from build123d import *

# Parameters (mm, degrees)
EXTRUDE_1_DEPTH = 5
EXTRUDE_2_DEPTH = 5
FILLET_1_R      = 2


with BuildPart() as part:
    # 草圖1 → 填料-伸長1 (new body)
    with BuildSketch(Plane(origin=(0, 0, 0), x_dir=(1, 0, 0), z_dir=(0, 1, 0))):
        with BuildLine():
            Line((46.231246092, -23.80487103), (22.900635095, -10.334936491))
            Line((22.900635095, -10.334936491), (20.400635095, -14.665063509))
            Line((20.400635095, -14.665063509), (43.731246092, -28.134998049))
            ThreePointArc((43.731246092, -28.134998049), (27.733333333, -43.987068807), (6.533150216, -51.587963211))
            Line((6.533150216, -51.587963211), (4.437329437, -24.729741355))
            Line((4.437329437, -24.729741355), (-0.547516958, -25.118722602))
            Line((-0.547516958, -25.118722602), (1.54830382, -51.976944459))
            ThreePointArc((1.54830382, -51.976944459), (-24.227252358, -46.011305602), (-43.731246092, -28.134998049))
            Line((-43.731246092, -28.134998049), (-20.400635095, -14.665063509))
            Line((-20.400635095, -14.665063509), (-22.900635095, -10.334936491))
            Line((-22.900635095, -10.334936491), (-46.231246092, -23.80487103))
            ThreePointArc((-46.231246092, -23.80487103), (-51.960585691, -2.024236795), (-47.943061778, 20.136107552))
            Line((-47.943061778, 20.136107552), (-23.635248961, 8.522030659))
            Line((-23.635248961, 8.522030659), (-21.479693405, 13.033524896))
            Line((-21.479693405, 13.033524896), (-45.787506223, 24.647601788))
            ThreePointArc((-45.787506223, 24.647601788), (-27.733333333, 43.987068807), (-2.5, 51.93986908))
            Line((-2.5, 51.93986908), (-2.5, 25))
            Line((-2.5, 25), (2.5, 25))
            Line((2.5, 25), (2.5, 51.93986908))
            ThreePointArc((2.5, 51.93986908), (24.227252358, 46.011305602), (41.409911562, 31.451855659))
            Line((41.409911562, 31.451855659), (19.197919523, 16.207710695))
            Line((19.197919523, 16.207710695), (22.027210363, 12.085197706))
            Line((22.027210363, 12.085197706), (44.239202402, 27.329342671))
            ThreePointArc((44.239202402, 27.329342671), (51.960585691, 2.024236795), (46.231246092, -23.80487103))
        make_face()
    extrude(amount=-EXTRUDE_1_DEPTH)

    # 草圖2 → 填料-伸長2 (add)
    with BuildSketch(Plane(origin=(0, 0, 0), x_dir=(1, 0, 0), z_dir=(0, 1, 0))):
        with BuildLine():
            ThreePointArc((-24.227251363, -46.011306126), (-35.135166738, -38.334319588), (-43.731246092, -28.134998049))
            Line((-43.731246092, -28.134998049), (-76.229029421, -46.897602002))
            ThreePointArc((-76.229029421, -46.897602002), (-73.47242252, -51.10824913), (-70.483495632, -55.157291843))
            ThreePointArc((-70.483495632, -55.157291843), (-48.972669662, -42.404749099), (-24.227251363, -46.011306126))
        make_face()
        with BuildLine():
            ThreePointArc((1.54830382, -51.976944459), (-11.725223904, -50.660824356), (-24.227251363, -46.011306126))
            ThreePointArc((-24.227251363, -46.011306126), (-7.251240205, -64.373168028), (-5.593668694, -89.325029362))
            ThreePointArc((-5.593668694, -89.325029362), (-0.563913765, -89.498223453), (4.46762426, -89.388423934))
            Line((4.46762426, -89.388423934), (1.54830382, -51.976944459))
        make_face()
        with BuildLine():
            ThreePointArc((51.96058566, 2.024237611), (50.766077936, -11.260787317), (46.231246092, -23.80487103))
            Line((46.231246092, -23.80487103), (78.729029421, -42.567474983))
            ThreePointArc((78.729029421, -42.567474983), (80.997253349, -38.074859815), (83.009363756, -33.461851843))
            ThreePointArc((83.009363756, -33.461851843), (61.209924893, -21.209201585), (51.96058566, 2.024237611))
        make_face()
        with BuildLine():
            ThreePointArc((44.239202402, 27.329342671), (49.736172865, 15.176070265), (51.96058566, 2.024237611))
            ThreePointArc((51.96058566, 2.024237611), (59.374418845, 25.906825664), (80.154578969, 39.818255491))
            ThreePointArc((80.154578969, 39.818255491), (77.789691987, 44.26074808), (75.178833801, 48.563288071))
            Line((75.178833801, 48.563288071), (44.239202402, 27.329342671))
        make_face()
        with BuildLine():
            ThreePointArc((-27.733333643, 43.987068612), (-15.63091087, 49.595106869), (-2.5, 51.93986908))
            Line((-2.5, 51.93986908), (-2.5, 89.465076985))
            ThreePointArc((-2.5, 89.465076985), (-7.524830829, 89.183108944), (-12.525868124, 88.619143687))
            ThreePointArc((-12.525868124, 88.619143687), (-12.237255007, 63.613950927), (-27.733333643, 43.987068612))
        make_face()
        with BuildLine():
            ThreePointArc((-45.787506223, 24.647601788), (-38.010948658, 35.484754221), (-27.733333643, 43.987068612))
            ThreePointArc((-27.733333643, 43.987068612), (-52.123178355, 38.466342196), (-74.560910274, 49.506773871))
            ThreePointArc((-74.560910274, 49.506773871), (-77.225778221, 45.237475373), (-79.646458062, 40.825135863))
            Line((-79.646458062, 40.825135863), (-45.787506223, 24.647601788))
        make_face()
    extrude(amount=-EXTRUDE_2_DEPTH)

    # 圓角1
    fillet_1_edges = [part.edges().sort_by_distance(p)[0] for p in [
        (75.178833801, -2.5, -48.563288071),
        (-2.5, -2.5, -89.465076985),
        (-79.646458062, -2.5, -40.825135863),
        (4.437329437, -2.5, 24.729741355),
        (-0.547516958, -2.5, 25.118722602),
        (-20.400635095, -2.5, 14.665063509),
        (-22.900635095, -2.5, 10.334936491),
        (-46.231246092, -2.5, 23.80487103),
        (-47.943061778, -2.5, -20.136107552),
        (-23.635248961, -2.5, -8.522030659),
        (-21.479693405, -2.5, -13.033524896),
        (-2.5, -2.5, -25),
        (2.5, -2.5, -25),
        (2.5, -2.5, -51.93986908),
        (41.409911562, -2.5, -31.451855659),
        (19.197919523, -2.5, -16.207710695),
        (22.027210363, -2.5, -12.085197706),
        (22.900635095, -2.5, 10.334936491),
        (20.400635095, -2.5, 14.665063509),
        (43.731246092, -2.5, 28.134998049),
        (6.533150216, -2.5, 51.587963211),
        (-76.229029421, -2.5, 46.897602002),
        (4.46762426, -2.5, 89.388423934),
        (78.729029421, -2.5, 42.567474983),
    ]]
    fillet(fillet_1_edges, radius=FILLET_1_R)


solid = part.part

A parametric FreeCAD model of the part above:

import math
import FreeCAD as App
import Part
import Sketcher
Q = App.Units.Quantity


def edges_at(feature, points):
    """Names of the edges that pass closest to the given points."""
    edges = feature.Shape.Edges
    near = lambda p: min(range(len(edges)), key=lambda i: edges[i].distToShape(Part.Vertex(*p))[0])
    return sorted({f"Edge{near(p) + 1}" for p in points})

doc = App.newDocument("Part")
body = doc.addObject("PartDesign::Body", "Body")

sketch1 = doc.addObject("Sketcher::SketchObject", "Sketch")
body.addObject(sketch1)
sketch1.AttachmentSupport = (doc.XZ_Plane, [""])
sketch1.MapMode = "FlatFace"
sketch1.addGeometry([
    Part.LineSegment(App.Vector(22.9, 10.3, 0), App.Vector(46.2, 23.8, 0)),
    Part.ArcOfCircle(Part.Circle(App.Vector(0, 0, 0), App.Vector(0, 0, 1), 52), math.radians(-32), math.radians(27)),
    Part.LineSegment(App.Vector(44.2, -27.3, 0), App.Vector(22, -12.1, 0)),
    Part.LineSegment(App.Vector(22, -12.1, 0), App.Vector(19.2, -16.2, 0)),
    Part.LineSegment(App.Vector(19.2, -16.2, 0), App.Vector(41.4, -31.5, 0)),
    Part.ArcOfCircle(Part.Circle(App.Vector(0, 0, 0), App.Vector(0, 0, 1), 52), math.radians(-87), math.radians(-37)),
    Part.LineSegment(App.Vector(2.5, -51.9, 0), App.Vector(2.5, -25, 0)),
    Part.LineSegment(App.Vector(2.5, -25, 0), App.Vector(-2.5, -25, 0)),
    Part.LineSegment(App.Vector(-2.5, -25, 0), App.Vector(-2.5, -51.9, 0)),
    Part.ArcOfCircle(Part.Circle(App.Vector(0, 0, 0), App.Vector(0, 0, 1), 52), math.radians(-152), math.radians(-93)),
    Part.LineSegment(App.Vector(-45.8, -24.6, 0), App.Vector(-21.5, -13, 0)),
    Part.LineSegment(App.Vector(-21.5, -13, 0), App.Vector(-23.6, -8.5, 0)),
    Part.LineSegment(App.Vector(-23.6, -8.5, 0), App.Vector(-47.9, -20.1, 0)),
    Part.ArcOfCircle(Part.Circle(App.Vector(0, 0, 0), App.Vector(0, 0, 1), 52), math.radians(153), math.radians(203)),
    Part.LineSegment(App.Vector(-46.2, 23.8, 0), App.Vector(-22.9, 10.3, 0)),
    Part.LineSegment(App.Vector(-22.9, 10.3, 0), App.Vector(-20.4, 14.7, 0)),
    Part.LineSegment(App.Vector(-20.4, 14.7, 0), App.Vector(-43.7, 28.1, 0)),
    Part.ArcOfCircle(Part.Circle(App.Vector(0, 0, 0), App.Vector(0, 0, 1), 52), math.radians(88), math.radians(147)),
    Part.LineSegment(App.Vector(1.5, 52, 0), App.Vector(-0.5, 25.1, 0)),
    Part.LineSegment(App.Vector(-0.5, 25.1, 0), App.Vector(4.4, 24.7, 0)),
    Part.LineSegment(App.Vector(4.4, 24.7, 0), App.Vector(6.5, 51.6, 0)),
    Part.ArcOfCircle(Part.Circle(App.Vector(0, 0, 0), App.Vector(0, 0, 1), 52), math.radians(33), math.radians(83)),
    Part.LineSegment(App.Vector(43.7, 28.1, 0), App.Vector(20.4, 14.7, 0)),
    Part.LineSegment(App.Vector(20.4, 14.7, 0), App.Vector(22.9, 10.3, 0)),
], False)
sketch1.addConstraint([
    Sketcher.Constraint("Coincident", 0, 2, 1, 2),
    Sketcher.Constraint("Coincident", 1, 1, 2, 1),
    Sketcher.Constraint("Coincident", 2, 2, 3, 1),
    Sketcher.Constraint("Coincident", 3, 2, 4, 1),
    Sketcher.Constraint("Coincident", 4, 2, 5, 2),
    Sketcher.Constraint("Coincident", 5, 1, 6, 1),
    Sketcher.Constraint("Coincident", 6, 2, 7, 1),
    Sketcher.Constraint("Coincident", 7, 2, 8, 1),
    Sketcher.Constraint("Coincident", 8, 2, 9, 2),
    Sketcher.Constraint("Coincident", 9, 1, 10, 1),
    Sketcher.Constraint("Coincident", 10, 2, 11, 1),
    Sketcher.Constraint("Coincident", 11, 2, 12, 1),
    Sketcher.Constraint("Coincident", 12, 2, 13, 2),
    Sketcher.Constraint("Coincident", 13, 1, 14, 1),
    Sketcher.Constraint("Coincident", 14, 2, 15, 1),
    Sketcher.Constraint("Coincident", 15, 2, 16, 1),
    Sketcher.Constraint("Coincident", 16, 2, 17, 2),
    Sketcher.Constraint("Coincident", 17, 1, 18, 1),
    Sketcher.Constraint("Coincident", 18, 2, 19, 1),
    Sketcher.Constraint("Coincident", 19, 2, 20, 1),
    Sketcher.Constraint("Coincident", 20, 2, 21, 2),
    Sketcher.Constraint("Coincident", 21, 1, 22, 1),
    Sketcher.Constraint("Coincident", 22, 2, 23, 1),
    Sketcher.Constraint("Coincident", 23, 2, 0, 1),
    Sketcher.Constraint("Vertical", 6),
    Sketcher.Constraint("Horizontal", 7),
    Sketcher.Constraint("Vertical", 8),
    Sketcher.Constraint("Coincident", 1, 3, -1, 1),
    Sketcher.Constraint("Coincident", 5, 3, -1, 1),
    Sketcher.Constraint("Coincident", 9, 3, -1, 1),
    Sketcher.Constraint("Coincident", 13, 3, -1, 1),
    Sketcher.Constraint("Coincident", 17, 3, -1, 1),
    Sketcher.Constraint("Coincident", 21, 3, -1, 1),
    Sketcher.Constraint("Equal", 1, 5),
    Sketcher.Constraint("Equal", 5, 9),
    Sketcher.Constraint("Equal", 9, 13),
    Sketcher.Constraint("Equal", 13, 17),
    Sketcher.Constraint("Equal", 17, 21),
    Sketcher.Constraint("Symmetric", 15, 2, 22, 2, -2),
    Sketcher.Constraint("Symmetric", 14, 2, 23, 2, -2),
    Sketcher.Constraint("Perpendicular", 2, 3),
    Sketcher.Constraint("Perpendicular", 3, 4),
    Sketcher.Constraint("Perpendicular", 10, 11),
    Sketcher.Constraint("Perpendicular", 11, 12),
    Sketcher.Constraint("Perpendicular", 14, 15),
    Sketcher.Constraint("Perpendicular", 15, 16),
    Sketcher.Constraint("Perpendicular", 18, 19),
    Sketcher.Constraint("Perpendicular", 19, 20),
    Sketcher.Constraint("Parallel", 0, 22),
    Sketcher.Constraint("Perpendicular", 22, 23),
    Sketcher.Constraint("Horizontal", 5, 1, 8, 2),
    Sketcher.Constraint("Equal", 0, 2),
    Sketcher.Constraint("Equal", 2, 4),
    Sketcher.Constraint("Equal", 4, 10),
    Sketcher.Constraint("Equal", 3, 11),
    Sketcher.Constraint("Equal", 10, 12),
    Sketcher.Constraint("Equal", 11, 15),
    Sketcher.Constraint("Equal", 14, 16),
    Sketcher.Constraint("Equal", 16, 18),
    Sketcher.Constraint("Equal", 15, 19),
    Sketcher.Constraint("Equal", 18, 20),
    Sketcher.Constraint("Radius", 1, Q("52 mm")),
    Sketcher.Constraint("DistanceX", 7, 2, 7, 1, Q("5 mm")),
    Sketcher.Constraint("Angle", 0, Q("30 deg")),
    Sketcher.Constraint("Distance", 3, Q("5 mm")),
    Sketcher.Constraint("DistanceY", 6, 2, -1, 1, Q("25 mm")),
    Sketcher.Constraint("DistanceY", 9, 1, -1, 1, Q("24.647602 mm")),
    Sketcher.Constraint("DistanceX", 2, 2, 4, 2, Q("19.382701 mm")),
    Sketcher.Constraint("DistanceY", 15, 2, 20, 2, Q("36.9229 mm")),
    Sketcher.Constraint("Distance", 0, Q("26.939869 mm")),
])
pad1 = doc.addObject("PartDesign::Pad", "Pad")
body.addObject(pad1)
pad1.Profile = sketch1
pad1.Length = 5

sketch2 = doc.addObject("Sketcher::SketchObject", "Sketch001")
body.addObject(sketch2)
sketch2.AttachmentSupport = (doc.XZ_Plane, [""])
sketch2.MapMode = "FlatFace"
sketch2.addGeometry([
    Part.ArcOfCircle(Part.Circle(App.Vector(0, 0, 0), App.Vector(0, 0, 1), 52), math.radians(118), math.radians(147)),
    Part.LineSegment(App.Vector(-44, 28, 0), App.Vector(-76, 47, 0)),
    Part.ArcOfCircle(Part.Circle(App.Vector(0, 0, 0), App.Vector(0, 0, 1), 89), math.radians(141.95), math.radians(148.4)),
    Part.ArcOfCircle(Part.Circle(App.Vector(-42, 79, 0), App.Vector(0, 0, 1), 38), math.radians(-140), math.radians(-62)),
    Part.ArcOfCircle(Part.Circle(App.Vector(0, 0, 0), App.Vector(0, 0, 1), 52), math.radians(88), math.radians(118)),
    Part.ArcOfCircle(Part.Circle(App.Vector(-42, 79, 0), App.Vector(0, 0, 1), 37), math.radians(-62), math.radians(16)),
    Part.ArcOfCircle(Part.Circle(App.Vector(0, 0, 0), App.Vector(0, 0, 1), 89), math.radians(87.14), math.radians(93.58)),
    Part.LineSegment(App.Vector(4, 89, 0), App.Vector(2, 52, 0)),
    Part.ArcOfCircle(Part.Circle(App.Vector(0, 0, 0), App.Vector(0, 0, 1), 52), math.radians(-2), math.radians(27)),
    Part.LineSegment(App.Vector(46, 24, 0), App.Vector(79, 43, 0)),
    Part.ArcOfCircle(Part.Circle(App.Vector(0, 0, 0), App.Vector(0, 0, 1), 89), math.radians(21.95), math.radians(28.4)),
    Part.ArcOfCircle(Part.Circle(App.Vector(89, -3, 0), App.Vector(0, 0, 1), 37), math.radians(100), math.radians(178)),
    Part.ArcOfCircle(Part.Circle(App.Vector(0, 0, 0), App.Vector(0, 0, 1), 52), math.radians(-32), math.radians(-2)),
    Part.ArcOfCircle(Part.Circle(App.Vector(89, -3, 0), App.Vector(0, 0, 1), 37), math.radians(178), math.radians(256)),
    Part.ArcOfCircle(Part.Circle(App.Vector(0, 0, 0), App.Vector(0, 0, 1), 89), math.radians(-32.86), math.radians(-26.42)),
    Part.LineSegment(App.Vector(75, -49, 0), App.Vector(44, -27, 0)),
    Part.ArcOfCircle(Part.Circle(App.Vector(0, 0, 0), App.Vector(0, 0, 1), 52), math.radians(-122), math.radians(-93)),
    Part.LineSegment(App.Vector(-2, -52, 0), App.Vector(-2, -89, 0)),
    Part.ArcOfCircle(Part.Circle(App.Vector(0, 0, 0), App.Vector(0, 0, 1), 90), math.radians(-98.05), math.radians(-91.6)),
    Part.ArcOfCircle(Part.Circle(App.Vector(-48, -76, 0), App.Vector(0, 0, 1), 38), math.radians(-20), math.radians(58)),
    Part.ArcOfCircle(Part.Circle(App.Vector(0, 0, 0), App.Vector(0, 0, 1), 52), math.radians(-152), math.radians(-122)),
    Part.ArcOfCircle(Part.Circle(App.Vector(-48, -76, 0), App.Vector(0, 0, 1), 37), math.radians(58), math.radians(136)),
    Part.ArcOfCircle(Part.Circle(App.Vector(0, 0, 0), App.Vector(0, 0, 1), 90), math.radians(-152.86), math.radians(-146.42)),
    Part.LineSegment(App.Vector(-80, -41, 0), App.Vector(-46, -25, 0)),
], False)
sketch2.addConstraint([
    Sketcher.Constraint("Coincident", 0, 2, 1, 1),
    Sketcher.Constraint("Coincident", 1, 2, 2, 2),
    Sketcher.Constraint("Coincident", 2, 1, 3, 1),
    Sketcher.Constraint("Tangent", 3, 2, 0, 1),
    Sketcher.Constraint("Tangent", 4, 2, 5, 1),
    Sketcher.Constraint("Coincident", 5, 2, 6, 2),
    Sketcher.Constraint("Coincident", 6, 1, 7, 1),
    Sketcher.Constraint("Coincident", 7, 2, 4, 1),
    Sketcher.Constraint("Coincident", 8, 2, 9, 1),
    Sketcher.Constraint("Coincident", 9, 2, 10, 2),
    Sketcher.Constraint("Coincident", 10, 1, 11, 1),
    Sketcher.Constraint("Tangent", 11, 2, 8, 1),
    Sketcher.Constraint("Tangent", 12, 2, 13, 1),
    Sketcher.Constraint("Coincident", 13, 2, 14, 2),
    Sketcher.Constraint("Coincident", 14, 1, 15, 1),
    Sketcher.Constraint("Coincident", 15, 2, 12, 1),
    Sketcher.Constraint("Coincident", 16, 2, 17, 1),
    Sketcher.Constraint("Coincident", 17, 2, 18, 2),
    Sketcher.Constraint("Coincident", 18, 1, 19, 1),
    Sketcher.Constraint("Tangent", 19, 2, 16, 1),
    Sketcher.Constraint("Tangent", 20, 2, 21, 1),
    Sketcher.Constraint("Coincident", 21, 2, 22, 2),
    Sketcher.Constraint("Coincident", 22, 1, 23, 1),
    Sketcher.Constraint("Coincident", 23, 2, 20, 1),
    Sketcher.Constraint("Vertical", 17),
    Sketcher.Constraint("Coincident", 0, 3, -1, 1),
    Sketcher.Constraint("Coincident", 2, 3, -1, 1),
    Sketcher.Constraint("Coincident", 4, 3, -1, 1),
    Sketcher.Constraint("Coincident", 6, 3, -1, 1),
    Sketcher.Constraint("Coincident", 8, 3, -1, 1),
    Sketcher.Constraint("Coincident", 10, 3, -1, 1),
    Sketcher.Constraint("Coincident", 12, 3, -1, 1),
    Sketcher.Constraint("Coincident", 14, 3, -1, 1),
    Sketcher.Constraint("Coincident", 16, 3, -1, 1),
    Sketcher.Constraint("Coincident", 18, 3, -1, 1),
    Sketcher.Constraint("Coincident", 20, 3, -1, 1),
    Sketcher.Constraint("Coincident", 22, 3, -1, 1),
    Sketcher.Constraint("Coincident", 5, 3, 3, 3),
    Sketcher.Constraint("Coincident", 13, 3, 11, 3),
    Sketcher.Constraint("Coincident", 21, 3, 19, 3),
    Sketcher.Constraint("Equal", 0, 4),
    Sketcher.Constraint("Equal", 2, 6),
    Sketcher.Constraint("Equal", 4, 8),
    Sketcher.Constraint("Equal", 6, 10),
    Sketcher.Constraint("Equal", 5, 11),
    Sketcher.Constraint("Equal", 8, 12),
    Sketcher.Constraint("Equal", 10, 14),
    Sketcher.Constraint("Equal", 12, 16),
    Sketcher.Constraint("Equal", 14, 18),
    Sketcher.Constraint("Equal", 13, 19),
    Sketcher.Constraint("Equal", 16, 20),
    Sketcher.Constraint("Equal", 18, 22),
    Sketcher.Constraint("Equal", 1, 7),
    Sketcher.Constraint("Equal", 7, 9),
    Sketcher.Constraint("Equal", 9, 15),
    Sketcher.Constraint("Equal", 15, 23),
    Sketcher.Constraint("Radius", 0, Q("52 mm")),
    Sketcher.Constraint("Radius", 2, Q("89.5 mm")),
    Sketcher.Constraint("Radius", 3, Q("37.5 mm")),
    Sketcher.Constraint("Angle", 1, Q("150 deg")),
    Sketcher.Constraint("Angle", 9, Q("30 deg")),
    Sketcher.Constraint("DistanceX", 21, 3, 19, 2, Q("20 mm")),
    Sketcher.Constraint("DistanceX", 16, 2, -1, 1, Q("2.5 mm")),
    Sketcher.Constraint("DistanceY", -1, 1, 0, 2, Q("28.134998 mm")),
    Sketcher.Constraint("DistanceY", 23, 2, -1, 1, Q("24.647602 mm")),
    Sketcher.Constraint("DistanceX", 1, 2, 3, 3, Q("34.530201 mm")),
    Sketcher.Constraint("DistanceX", 10, 1, 11, 3, Q("6.422798 mm")),
    Sketcher.Constraint("DistanceY", 18, 1, 15, 2, Q("61.289801 mm")),
    Sketcher.Constraint("DistanceY", 5, 3, 6, 1, Q("10.195888 mm")),
])
pad2 = doc.addObject("PartDesign::Pad", "Pad001")
body.addObject(pad2)
pad2.Profile = sketch2
pad2.Length = 5
doc.recompute()

fillet = doc.addObject("PartDesign::Fillet", "Fillet")
body.addObject(fillet)
fillet.Base = (pad2, edges_at(pad2, [
    (75.179, -2.5, -48.563),
    (-2.5, -2.5, -89.465),
    (-79.646, -2.5, -40.825),
    (4.437, -2.5, 24.73),
    (-0.548, -2.5, 25.119),
    (-20.401, -2.5, 14.665),
    (-22.901, -2.5, 10.335),
    (-46.231, -2.5, 23.805),
    (-47.943, -2.5, -20.136),
    (-23.635, -2.5, -8.522),
    (-21.48, -2.5, -13.034),
    (-2.5, -2.5, -25),
    (2.5, -2.5, -25),
    (2.5, -2.5, -51.94),
    (41.41, -2.5, -31.452),
    (19.198, -2.5, -16.208),
    (22.027, -2.5, -12.085),
    (22.901, -2.5, 10.335),
    (20.401, -2.5, 14.665),
    (43.731, -2.5, 28.135),
    (6.533, -2.5, 51.588),
    (-76.229, -2.5, 46.898),
    (4.468, -2.5, 89.388),
    (78.729, -2.5, 42.567),
]))
fillet.Radius = 2

doc.recompute()
